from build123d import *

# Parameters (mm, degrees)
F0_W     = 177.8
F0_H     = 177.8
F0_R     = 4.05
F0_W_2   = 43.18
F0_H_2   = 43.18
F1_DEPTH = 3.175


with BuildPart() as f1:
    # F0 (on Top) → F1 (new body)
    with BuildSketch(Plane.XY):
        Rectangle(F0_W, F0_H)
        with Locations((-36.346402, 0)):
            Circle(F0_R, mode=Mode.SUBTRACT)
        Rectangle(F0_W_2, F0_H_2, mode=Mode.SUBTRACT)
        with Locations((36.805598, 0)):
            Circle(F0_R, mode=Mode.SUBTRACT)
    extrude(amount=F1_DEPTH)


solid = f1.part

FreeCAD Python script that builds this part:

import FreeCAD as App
import Part
import Sketcher

V = App.Vector
Q = App.Units.Quantity

doc = App.newDocument("Part")
body = doc.addObject("PartDesign::Body", "Body")

sketch1 = body.newObject("Sketcher::SketchObject", "Sketch")
sketch1.AttachmentSupport = (doc.getObject("XY_Plane"), [""])
sketch1.MapMode = "FlatFace"
sketch1.addGeometry([
    Part.LineSegment(V(-88.9, 88.9, 0), V(-88.9, -88.9, 0)),
    Part.LineSegment(V(-88.9, -88.9, 0), V(88.9, -88.9, 0)),
    Part.LineSegment(V(88.9, -88.9, 0), V(88.9, 88.9, 0)),
    Part.LineSegment(V(88.9, 88.9, 0), V(-88.9, 88.9, 0)),
    Part.Circle(V(-36.3, 0, 0), V(0, 0, 1), 4),
    Part.LineSegment(V(21.6, -21.6, 0), V(-21.6, -21.6, 0)),
    Part.LineSegment(V(-21.6, -21.6, 0), V(-21.6, 21.6, 0)),
    Part.LineSegment(V(-21.6, 21.6, 0), V(21.6, 21.6, 0)),
    Part.LineSegment(V(21.6, 21.6, 0), V(21.6, -21.6, 0)),
    Part.Circle(V(36.8, 0, 0), V(0, 0, 1), 4),
], False)
sketch1.addConstraint([
    Sketcher.Constraint("Coincident", 0, 2, 1, 1),
    Sketcher.Constraint("Coincident", 1, 2, 2, 1),
    Sketcher.Constraint("Coincident", 2, 2, 3, 1),
    Sketcher.Constraint("Coincident", 3, 2, 0, 1),
    Sketcher.Constraint("Coincident", 5, 2, 6, 1),
    Sketcher.Constraint("Coincident", 6, 2, 7, 1),
    Sketcher.Constraint("Coincident", 7, 2, 8, 1),
    Sketcher.Constraint("Coincident", 8, 2, 5, 1),
    Sketcher.Constraint("Vertical", 0),
    Sketcher.Constraint("Horizontal", 1),
    Sketcher.Constraint("Vertical", 2),
    Sketcher.Constraint("Horizontal", 3),
    Sketcher.Constraint("Horizontal", 5),
    Sketcher.Constraint("Vertical", 6),
    Sketcher.Constraint("Horizontal", 7),
    Sketcher.Constraint("Vertical", 8),
    Sketcher.Constraint("Equal", 4, 9),
    Sketcher.Constraint("Symmetric", 0, 2, 2, 2, -1, 1),
    Sketcher.Constraint("Symmetric", 5, 2, 7, 2, -1, 1),
    Sketcher.Constraint("PointOnObject", 4, 3, -1),
    Sketcher.Constraint("PointOnObject", 9, 3, -1),
    Sketcher.Constraint("Equal", 3, 0),
    Sketcher.Constraint("Equal", 7, 6),
    Sketcher.Constraint("DistanceX", 1, 1, 1, 2, Q("7 in")),
    Sketcher.Constraint("DistanceX", 5, 2, 5, 1, Q("1.7 in")),
    Sketcher.Constraint("Diameter", 4, 8.1),
    Sketcher.Constraint("DistanceX", 4, 3, 9, 3, Q("2.88 in")),
    Sketcher.Constraint("DistanceX", 4, 3, -1, 1, 36.346402),
])
pad1 = body.newObject("PartDesign::Pad", "Pad")
pad1.Profile = sketch1
pad1.Length = Q("0.125 in")

doc.recompute()
